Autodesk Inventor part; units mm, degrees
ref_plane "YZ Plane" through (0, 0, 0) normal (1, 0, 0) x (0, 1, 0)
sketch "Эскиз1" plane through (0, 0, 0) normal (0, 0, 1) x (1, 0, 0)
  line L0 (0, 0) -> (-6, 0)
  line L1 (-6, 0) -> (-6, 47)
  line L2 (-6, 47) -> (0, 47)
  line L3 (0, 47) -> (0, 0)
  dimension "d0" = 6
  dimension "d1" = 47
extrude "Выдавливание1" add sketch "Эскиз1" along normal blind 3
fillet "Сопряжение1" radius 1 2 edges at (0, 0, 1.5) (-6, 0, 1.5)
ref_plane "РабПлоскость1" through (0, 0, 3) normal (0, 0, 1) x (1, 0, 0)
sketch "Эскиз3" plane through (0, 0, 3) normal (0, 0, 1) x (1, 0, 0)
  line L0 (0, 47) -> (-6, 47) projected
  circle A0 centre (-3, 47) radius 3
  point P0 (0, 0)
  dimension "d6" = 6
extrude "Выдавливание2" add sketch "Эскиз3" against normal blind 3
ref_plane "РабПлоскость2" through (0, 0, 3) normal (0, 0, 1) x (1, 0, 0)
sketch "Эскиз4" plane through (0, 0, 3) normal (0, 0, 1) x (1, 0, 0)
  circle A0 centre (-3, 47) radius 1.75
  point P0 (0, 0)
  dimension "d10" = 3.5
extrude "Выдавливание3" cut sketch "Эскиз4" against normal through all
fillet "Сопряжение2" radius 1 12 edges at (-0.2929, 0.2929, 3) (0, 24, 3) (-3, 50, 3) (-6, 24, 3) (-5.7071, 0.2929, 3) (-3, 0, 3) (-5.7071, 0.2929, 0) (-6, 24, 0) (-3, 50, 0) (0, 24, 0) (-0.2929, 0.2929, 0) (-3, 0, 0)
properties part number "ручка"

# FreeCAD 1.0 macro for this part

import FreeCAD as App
import Part
import Sketcher
from FreeCAD import Vector


def edges_at(feature, points):
    """Names of the edges that pass closest to the given points."""
    edges = feature.Shape.Edges
    near = lambda p: min(range(len(edges)), key=lambda i: edges[i].distToShape(Part.Vertex(*p))[0])
    return sorted({f"Edge{near(p) + 1}" for p in points})


def add_polygon(sketch, points):
    """Adds a closed chain of lines whose ends are joined by coincident constraints."""
    first, n = sketch.GeometryCount, len(points)
    for a, b in zip(points, points[1:] + points[:1]):
        sketch.addGeometry(Part.LineSegment(App.Vector(*a, 0), App.Vector(*b, 0)), False)
    for i in range(n):
        sketch.addConstraint(Sketcher.Constraint("Coincident", first + i, 2, first + (i + 1) % n, 1))

doc = App.newDocument("Part")
params = doc.addObject("Spreadsheet::Sheet", "Params")
for row, (alias, value) in enumerate([
    ("sketch1_width", "6 mm"),
    ("sketch1_height", "47 mm"),
    ("pad1_length", "3 mm"),
    ("fillet_radius", "1 mm"),
    ("sketch2_diameter", "6 mm"),
    ("pad2_length", "3 mm"),
    ("sketch3_diameter", "3.5 mm"),
    ("fillet2_radius", "1 mm"),
], start=1):
    params.set(f"A{row}", alias)
    params.set(f"B{row}", "=" + value)
    params.setAlias(f"B{row}", alias)

body = doc.addObject("PartDesign::Body", "Body")

sketch1 = body.newObject("Sketcher::SketchObject", "Sketch")
sketch1.AttachmentSupport = (doc.getObject("XY_Plane"), [""])
sketch1.MapMode = "FlatFace"
add_polygon(sketch1, [(-6, 0), (0, 0), (0, 47), (-6, 47)])
sketch1.addConstraint([
    Sketcher.Constraint("Horizontal", 0),
    Sketcher.Constraint("Vertical", 1),
    Sketcher.Constraint("Horizontal", 2),
    Sketcher.Constraint("Vertical", 3),
    Sketcher.Constraint("Coincident", 0, 2, -1, 1),
    Sketcher.Constraint("DistanceX", 0, 1, 0, 2, 6.0),
    Sketcher.Constraint("DistanceY", 1, 1, 1, 2, 47.0),
])
sketch1.setExpression("Constraints[9]", "Params.sketch1_width")
sketch1.setExpression("Constraints[10]", "Params.sketch1_height")
pad1 = body.newObject("PartDesign::Pad", "Pad")
pad1.Profile = sketch1
pad1.setExpression("Length", "Params.pad1_length")
doc.recompute()

fillet = body.newObject("PartDesign::Fillet", "Fillet")
fillet.Base = (pad1, edges_at(pad1, [(0, 0, 1.5), (-6, 0, 1.5)]))
fillet.setExpression("Radius", "Params.fillet_radius")

sketch2 = body.newObject("Sketcher::SketchObject", "Sketch001")
sketch2.AttachmentSupport = (doc.getObject("XY_Plane"), [""])
sketch2.MapMode = "FlatFace"
sketch2.AttachmentOffset = App.Placement(Vector(0, 0, 3), App.Rotation())
sketch2.addGeometry(Part.Circle(Vector(-3, 47, 0), Vector(0, 0, 1), 3), False)
sketch2.addConstraint([
    Sketcher.Constraint("Diameter", 0, 6.0),
    Sketcher.Constraint("DistanceX", 0, 3, -1, 1, 3.0),
    Sketcher.Constraint("DistanceY", -1, 1, 0, 3, 47.0),
])
sketch2.setExpression("Constraints[0]", "Params.sketch2_diameter")
pad2 = body.newObject("PartDesign::Pad", "Pad001")
pad2.Profile = sketch2
pad2.setExpression("Length", "Params.pad2_length")
pad2.Reversed = True

sketch3 = body.newObject("Sketcher::SketchObject", "Sketch002")
sketch3.AttachmentSupport = (doc.getObject("XY_Plane"), [""])
sketch3.MapMode = "FlatFace"
sketch3.AttachmentOffset = App.Placement(Vector(0, 0, 3), App.Rotation())
sketch3.addGeometry(Part.Circle(Vector(-3, 47, 0), Vector(0, 0, 1), 1.75), False)
sketch3.addConstraint([
    Sketcher.Constraint("Diameter", 0, 3.5),
    Sketcher.Constraint("DistanceX", 0, 3, -1, 1, 3.0),
    Sketcher.Constraint("DistanceY", -1, 1, 0, 3, 47.0),
])
sketch3.setExpression("Constraints[0]", "Params.sketch3_diameter")
pocket1 = body.newObject("PartDesign::Pocket", "Pocket")
pocket1.Profile = sketch3
pocket1.Type = "ThroughAll"
doc.recompute()

fillet2 = body.newObject("PartDesign::Fillet", "Fillet001")
fillet2.Base = (pocket1, edges_at(pocket1, [
    (-0.293, 0.293, 3),
    (0, 24, 3),
    (-3, 50, 3),
    (-6, 24, 3),
    (-5.707, 0.293, 3),
    (-3, 0, 3),
    (-5.707, 0.293, 0),
    (-6, 24, 0),
    (-3, 50, 0),
    (0, 24, 0),
    (-0.293, 0.293, 0),
    (-3, 0, 0),
]))
fillet2.setExpression("Radius", "Params.fillet2_radius")

doc.recompute()
